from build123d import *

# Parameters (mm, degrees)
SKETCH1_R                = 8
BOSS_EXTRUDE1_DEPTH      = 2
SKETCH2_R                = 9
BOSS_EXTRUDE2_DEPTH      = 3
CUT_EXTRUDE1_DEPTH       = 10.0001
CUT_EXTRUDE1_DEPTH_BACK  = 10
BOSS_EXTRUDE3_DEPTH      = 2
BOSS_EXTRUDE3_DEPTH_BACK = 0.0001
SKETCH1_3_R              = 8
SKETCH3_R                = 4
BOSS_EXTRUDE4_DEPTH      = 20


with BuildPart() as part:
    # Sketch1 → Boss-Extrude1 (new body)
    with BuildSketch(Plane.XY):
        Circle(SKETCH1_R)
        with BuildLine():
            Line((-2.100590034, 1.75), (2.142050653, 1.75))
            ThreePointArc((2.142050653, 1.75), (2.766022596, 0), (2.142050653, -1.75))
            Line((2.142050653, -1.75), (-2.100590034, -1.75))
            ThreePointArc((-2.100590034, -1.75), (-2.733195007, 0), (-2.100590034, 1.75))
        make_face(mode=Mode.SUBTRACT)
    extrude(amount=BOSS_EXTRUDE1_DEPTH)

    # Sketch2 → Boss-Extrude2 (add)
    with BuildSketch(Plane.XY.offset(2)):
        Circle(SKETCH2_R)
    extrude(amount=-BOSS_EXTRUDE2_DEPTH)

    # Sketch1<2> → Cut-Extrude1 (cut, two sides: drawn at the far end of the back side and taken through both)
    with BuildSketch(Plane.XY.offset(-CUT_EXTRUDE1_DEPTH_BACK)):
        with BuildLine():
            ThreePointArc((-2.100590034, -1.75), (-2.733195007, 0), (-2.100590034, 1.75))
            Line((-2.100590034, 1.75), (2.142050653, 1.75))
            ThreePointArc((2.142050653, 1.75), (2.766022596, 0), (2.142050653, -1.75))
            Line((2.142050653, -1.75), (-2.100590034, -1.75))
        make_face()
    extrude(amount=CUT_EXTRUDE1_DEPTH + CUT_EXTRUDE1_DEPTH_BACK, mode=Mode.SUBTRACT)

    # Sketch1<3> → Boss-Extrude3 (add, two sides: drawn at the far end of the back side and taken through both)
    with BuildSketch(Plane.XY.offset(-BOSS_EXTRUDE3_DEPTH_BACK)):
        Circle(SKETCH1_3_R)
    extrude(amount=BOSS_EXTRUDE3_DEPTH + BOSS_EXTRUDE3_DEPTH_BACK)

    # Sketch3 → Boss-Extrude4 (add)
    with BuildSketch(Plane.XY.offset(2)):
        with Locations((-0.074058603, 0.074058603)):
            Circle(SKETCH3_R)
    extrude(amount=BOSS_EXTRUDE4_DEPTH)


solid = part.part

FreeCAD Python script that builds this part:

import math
import FreeCAD as App
import Part
import Sketcher
Q = App.Units.Quantity

doc = App.newDocument("Part")
body = doc.addObject("PartDesign::Body", "Body")

sketch1 = body.newObject("Sketcher::SketchObject", "Sketch")
sketch1.AttachmentSupport = (doc.getObject("XY_Plane"), [""])
sketch1.MapMode = "FlatFace"
sketch1.addGeometry([
    Part.Circle(App.Vector(0, 0, 0), App.Vector(0, 0, 1), 8),
    Part.ArcOfCircle(Part.Circle(App.Vector(0, 0, 0), App.Vector(0, 0, 1), 2.7), math.radians(140), math.radians(220)),
    Part.LineSegment(App.Vector(-2.1, 1.8, 0), App.Vector(2.1, 1.8, 0)),
    Part.ArcOfCircle(Part.Circle(App.Vector(0, 0, 0), App.Vector(0, 0, 1), 2.8), math.radians(-39), math.radians(39)),
    Part.LineSegment(App.Vector(2.1, -1.8, 0), App.Vector(-2.1, -1.8, 0)),
], False)
sketch1.addConstraint([
    Sketcher.Constraint("Coincident", 1, 1, 2, 1),
    Sketcher.Constraint("Coincident", 2, 2, 3, 2),
    Sketcher.Constraint("Coincident", 3, 1, 4, 1),
    Sketcher.Constraint("Coincident", 4, 2, 1, 2),
    Sketcher.Constraint("Horizontal", 2),
    Sketcher.Constraint("Horizontal", 4),
    Sketcher.Constraint("Coincident", 0, 3, -1, 1),
    Sketcher.Constraint("Coincident", 3, 3, -1, 1),
    Sketcher.Constraint("Symmetric", 1, 1, 4, 2, -1),
    Sketcher.Constraint("Diameter", 0, Q("16 mm")),
    Sketcher.Constraint("DistanceY", 3, 1, 2, 2, Q("3.5 mm")),
    Sketcher.Constraint("Radius", 1, Q("2.736849 mm")),
    Sketcher.Constraint("Radius", 3, Q("2.766023 mm")),
    Sketcher.Constraint("DistanceX", 2, 1, 2, 2, Q("4.242641 mm")),
])
pad1 = body.newObject("PartDesign::Pad", "Pad")
pad1.Profile = sketch1
pad1.Length = 2

sketch2 = body.newObject("Sketcher::SketchObject", "Sketch001")
sketch2.AttachmentSupport = (doc.getObject("XY_Plane"), [""])
sketch2.MapMode = "FlatFace"
sketch2.AttachmentOffset = App.Placement(App.Vector(0, 0, 2), App.Rotation())
sketch2.addGeometry(Part.Circle(App.Vector(0, 0, 0), App.Vector(0, 0, 1), 9), False)
sketch2.addConstraint([
    Sketcher.Constraint("Coincident", 0, 3, -1, 1),
    Sketcher.Constraint("Diameter", 0, Q("18 mm")),
])
pad2 = body.newObject("PartDesign::Pad", "Pad001")
pad2.Profile = sketch2
pad2.Length = 3
pad2.Reversed = True

sketch3 = body.newObject("Sketcher::SketchObject", "Sketch002")
sketch3.AttachmentSupport = (doc.getObject("XY_Plane"), [""])
sketch3.MapMode = "FlatFace"
sketch3.addGeometry([
    Part.ArcOfCircle(Part.Circle(App.Vector(0, 0, 0), App.Vector(0, 0, 1), 2.7), math.radians(140), math.radians(220)),
    Part.LineSegment(App.Vector(-2.1, -1.8, 0), App.Vector(2.1, -1.8, 0)),
    Part.ArcOfCircle(Part.Circle(App.Vector(0, 0, 0), App.Vector(0, 0, 1), 2.8), math.radians(-39), math.radians(39)),
    Part.LineSegment(App.Vector(2.1, 1.8, 0), App.Vector(-2.1, 1.8, 0)),
], False)
sketch3.addConstraint([
    Sketcher.Constraint("Coincident", 0, 2, 1, 1),
    Sketcher.Constraint("Coincident", 1, 2, 2, 1),
    Sketcher.Constraint("Coincident", 2, 2, 3, 1),
    Sketcher.Constraint("Coincident", 3, 2, 0, 1),
    Sketcher.Constraint("Horizontal", 1),
    Sketcher.Constraint("Horizontal", 3),
    Sketcher.Constraint("Coincident", 2, 3, -1, 1),
    Sketcher.Constraint("Symmetric", 0, 2, 3, 2, -1),
    Sketcher.Constraint("DistanceY", 1, 2, 2, 2, Q("3.5 mm")),
    Sketcher.Constraint("Radius", 0, Q("2.736849 mm")),
    Sketcher.Constraint("Radius", 2, Q("2.766023 mm")),
    Sketcher.Constraint("DistanceX", 1, 1, 1, 2, Q("4.242641 mm")),
])
pocket1 = body.newObject("PartDesign::Pocket", "Pocket")
pocket1.Profile = sketch3
pocket1.Type = "ThroughAll"
pocket1.Midplane = True

sketch4 = body.newObject("Sketcher::SketchObject", "Sketch003")
sketch4.AttachmentSupport = (doc.getObject("XY_Plane"), [""])
sketch4.MapMode = "FlatFace"
sketch4.addGeometry(Part.Circle(App.Vector(0, 0, 0), App.Vector(0, 0, 1), 8), False)
sketch4.addConstraint([
    Sketcher.Constraint("Coincident", 0, 3, -1, 1),
    Sketcher.Constraint("Diameter", 0, Q("16 mm")),
])
pad3 = body.newObject("PartDesign::Pad", "Pad002")
pad3.Profile = sketch4
pad3.Type = "TwoLengths"
pad3.Length = 2
pad3.Length2 = 0.0001

sketch5 = body.newObject("Sketcher::SketchObject", "Sketch004")
sketch5.AttachmentSupport = (doc.getObject("XY_Plane"), [""])
sketch5.MapMode = "FlatFace"
sketch5.AttachmentOffset = App.Placement(App.Vector(0, 0, 2), App.Rotation())
sketch5.addGeometry(Part.Circle(App.Vector(-0.1, 0.1, 0), App.Vector(0, 0, 1), 4), False)
sketch5.addConstraint([
    Sketcher.Constraint("Diameter", 0, Q("8 mm")),
    Sketcher.Constraint("DistanceX", 0, 3, -1, 1, Q("0.074059 mm")),
    Sketcher.Constraint("DistanceY", -1, 1, 0, 3, Q("0.074059 mm")),
])
pad4 = body.newObject("PartDesign::Pad", "Pad003")
pad4.Profile = sketch5
pad4.Length = 20

doc.recompute()
